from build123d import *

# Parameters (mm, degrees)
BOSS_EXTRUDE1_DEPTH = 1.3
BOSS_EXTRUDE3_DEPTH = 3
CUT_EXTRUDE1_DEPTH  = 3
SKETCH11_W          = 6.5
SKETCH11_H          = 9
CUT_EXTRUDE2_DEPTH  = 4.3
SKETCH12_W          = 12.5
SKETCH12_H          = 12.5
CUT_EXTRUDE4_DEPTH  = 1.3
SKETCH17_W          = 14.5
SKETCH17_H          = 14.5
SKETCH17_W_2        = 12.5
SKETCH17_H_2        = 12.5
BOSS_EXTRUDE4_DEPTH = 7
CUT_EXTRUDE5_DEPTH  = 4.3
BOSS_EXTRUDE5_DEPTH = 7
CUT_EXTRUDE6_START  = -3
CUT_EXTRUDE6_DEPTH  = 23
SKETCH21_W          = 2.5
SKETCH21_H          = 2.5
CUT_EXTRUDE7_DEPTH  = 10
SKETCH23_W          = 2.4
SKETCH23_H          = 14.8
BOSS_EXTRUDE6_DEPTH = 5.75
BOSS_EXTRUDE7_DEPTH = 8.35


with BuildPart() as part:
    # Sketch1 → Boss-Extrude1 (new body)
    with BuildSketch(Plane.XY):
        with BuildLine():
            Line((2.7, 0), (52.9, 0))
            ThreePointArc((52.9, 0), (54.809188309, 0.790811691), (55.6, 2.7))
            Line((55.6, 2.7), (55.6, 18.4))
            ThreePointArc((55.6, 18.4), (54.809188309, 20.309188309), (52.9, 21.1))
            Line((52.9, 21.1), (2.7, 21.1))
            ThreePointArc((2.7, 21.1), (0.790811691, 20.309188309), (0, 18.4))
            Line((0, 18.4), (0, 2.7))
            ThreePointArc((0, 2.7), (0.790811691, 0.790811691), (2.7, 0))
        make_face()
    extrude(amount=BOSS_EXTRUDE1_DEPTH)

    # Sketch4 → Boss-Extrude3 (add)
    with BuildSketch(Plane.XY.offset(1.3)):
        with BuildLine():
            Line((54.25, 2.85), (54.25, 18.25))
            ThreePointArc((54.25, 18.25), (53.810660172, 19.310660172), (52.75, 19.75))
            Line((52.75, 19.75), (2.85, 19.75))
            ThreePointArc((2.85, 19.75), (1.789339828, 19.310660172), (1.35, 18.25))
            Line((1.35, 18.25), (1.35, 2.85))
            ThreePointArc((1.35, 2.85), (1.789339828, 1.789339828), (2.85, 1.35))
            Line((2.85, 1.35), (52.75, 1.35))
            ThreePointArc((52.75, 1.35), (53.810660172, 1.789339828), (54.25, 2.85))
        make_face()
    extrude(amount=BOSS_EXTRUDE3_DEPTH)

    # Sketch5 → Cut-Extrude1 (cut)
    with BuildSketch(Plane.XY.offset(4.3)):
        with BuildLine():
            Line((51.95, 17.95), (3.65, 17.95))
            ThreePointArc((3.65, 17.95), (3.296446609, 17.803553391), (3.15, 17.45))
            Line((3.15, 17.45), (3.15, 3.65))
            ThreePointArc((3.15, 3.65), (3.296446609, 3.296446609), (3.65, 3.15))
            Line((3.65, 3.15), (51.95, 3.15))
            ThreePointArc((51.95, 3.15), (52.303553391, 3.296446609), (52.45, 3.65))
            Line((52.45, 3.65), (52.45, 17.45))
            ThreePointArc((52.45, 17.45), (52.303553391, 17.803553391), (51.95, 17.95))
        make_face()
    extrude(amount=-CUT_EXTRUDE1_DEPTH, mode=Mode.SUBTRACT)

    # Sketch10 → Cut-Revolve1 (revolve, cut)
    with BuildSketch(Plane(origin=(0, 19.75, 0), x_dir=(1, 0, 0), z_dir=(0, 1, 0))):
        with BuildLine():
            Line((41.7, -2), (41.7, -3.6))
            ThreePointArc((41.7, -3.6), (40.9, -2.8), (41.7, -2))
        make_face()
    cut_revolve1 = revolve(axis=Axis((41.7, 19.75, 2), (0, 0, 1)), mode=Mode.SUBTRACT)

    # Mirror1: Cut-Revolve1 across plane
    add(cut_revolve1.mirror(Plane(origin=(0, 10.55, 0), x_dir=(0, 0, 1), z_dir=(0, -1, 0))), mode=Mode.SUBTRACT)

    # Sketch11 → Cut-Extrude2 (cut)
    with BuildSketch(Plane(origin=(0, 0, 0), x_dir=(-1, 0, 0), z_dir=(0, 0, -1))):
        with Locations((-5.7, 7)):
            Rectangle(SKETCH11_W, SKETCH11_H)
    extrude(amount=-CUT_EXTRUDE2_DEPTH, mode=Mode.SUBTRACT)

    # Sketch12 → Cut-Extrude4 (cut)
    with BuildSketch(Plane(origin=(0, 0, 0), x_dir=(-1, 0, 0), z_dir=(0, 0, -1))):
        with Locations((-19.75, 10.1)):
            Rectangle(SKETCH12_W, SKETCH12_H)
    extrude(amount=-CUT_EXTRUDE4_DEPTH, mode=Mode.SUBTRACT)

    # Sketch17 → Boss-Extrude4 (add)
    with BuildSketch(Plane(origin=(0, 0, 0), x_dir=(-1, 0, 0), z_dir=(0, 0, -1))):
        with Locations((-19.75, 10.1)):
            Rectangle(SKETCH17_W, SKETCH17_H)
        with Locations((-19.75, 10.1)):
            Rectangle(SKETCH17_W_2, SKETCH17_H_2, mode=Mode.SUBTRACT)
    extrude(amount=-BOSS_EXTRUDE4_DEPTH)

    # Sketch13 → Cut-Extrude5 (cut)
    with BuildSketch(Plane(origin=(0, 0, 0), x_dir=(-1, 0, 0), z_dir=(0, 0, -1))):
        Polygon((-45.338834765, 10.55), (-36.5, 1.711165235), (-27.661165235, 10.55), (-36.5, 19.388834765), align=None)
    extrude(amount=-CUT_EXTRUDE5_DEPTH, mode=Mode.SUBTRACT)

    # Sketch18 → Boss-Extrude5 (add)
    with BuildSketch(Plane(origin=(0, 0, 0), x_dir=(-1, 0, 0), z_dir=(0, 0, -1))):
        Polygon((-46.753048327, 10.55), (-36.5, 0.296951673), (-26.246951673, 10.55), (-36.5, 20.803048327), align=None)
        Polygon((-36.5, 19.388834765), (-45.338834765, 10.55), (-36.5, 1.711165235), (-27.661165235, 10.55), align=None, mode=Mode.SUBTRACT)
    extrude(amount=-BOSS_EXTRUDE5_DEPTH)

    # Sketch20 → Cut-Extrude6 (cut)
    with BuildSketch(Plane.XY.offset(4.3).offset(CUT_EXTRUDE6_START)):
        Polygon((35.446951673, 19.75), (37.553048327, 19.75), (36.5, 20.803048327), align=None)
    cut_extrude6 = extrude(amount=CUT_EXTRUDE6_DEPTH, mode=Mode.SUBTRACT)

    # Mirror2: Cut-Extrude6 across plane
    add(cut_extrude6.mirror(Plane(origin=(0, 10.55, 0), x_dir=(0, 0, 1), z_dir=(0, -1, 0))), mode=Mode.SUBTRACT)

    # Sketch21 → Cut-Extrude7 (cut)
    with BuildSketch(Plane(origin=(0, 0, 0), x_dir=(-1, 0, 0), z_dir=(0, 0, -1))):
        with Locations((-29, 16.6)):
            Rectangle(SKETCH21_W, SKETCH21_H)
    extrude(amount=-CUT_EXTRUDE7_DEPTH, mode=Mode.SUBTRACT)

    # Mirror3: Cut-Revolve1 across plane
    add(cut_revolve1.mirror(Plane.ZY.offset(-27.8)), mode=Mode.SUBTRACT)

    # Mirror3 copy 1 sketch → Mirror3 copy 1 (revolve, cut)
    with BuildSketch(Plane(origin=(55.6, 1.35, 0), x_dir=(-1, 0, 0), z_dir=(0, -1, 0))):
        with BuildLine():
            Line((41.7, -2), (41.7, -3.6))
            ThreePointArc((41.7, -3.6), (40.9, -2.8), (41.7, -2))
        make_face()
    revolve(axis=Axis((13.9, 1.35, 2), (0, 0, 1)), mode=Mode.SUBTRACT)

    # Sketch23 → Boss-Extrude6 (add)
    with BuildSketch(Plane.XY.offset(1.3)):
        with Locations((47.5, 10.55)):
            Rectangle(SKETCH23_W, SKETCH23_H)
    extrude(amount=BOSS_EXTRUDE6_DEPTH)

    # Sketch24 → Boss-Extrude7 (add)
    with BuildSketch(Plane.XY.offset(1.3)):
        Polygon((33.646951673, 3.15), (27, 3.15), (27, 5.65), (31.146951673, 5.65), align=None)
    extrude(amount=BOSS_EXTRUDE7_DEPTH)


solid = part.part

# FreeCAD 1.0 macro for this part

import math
import FreeCAD as App
import Part
import Sketcher
from FreeCAD import Vector
Q = App.Units.Quantity


def add_polygon(sketch, points):
    """Adds a closed chain of lines whose ends are joined by coincident constraints."""
    first, n = sketch.GeometryCount, len(points)
    for a, b in zip(points, points[1:] + points[:1]):
        sketch.addGeometry(Part.LineSegment(App.Vector(*a, 0), App.Vector(*b, 0)), False)
    for i in range(n):
        sketch.addConstraint(Sketcher.Constraint("Coincident", first + i, 2, first + (i + 1) % n, 1))

doc = App.newDocument("Part")
body = doc.addObject("PartDesign::Body", "Body")

sketch1 = body.newObject("Sketcher::SketchObject", "Sketch")
sketch1.AttachmentSupport = (doc.getObject("XY_Plane"), [""])
sketch1.MapMode = "FlatFace"
sketch1.addGeometry(Part.LineSegment(Vector(2.7, 0, 0), Vector(52.9, 0, 0)), False)
sketch1.addGeometry(Part.ArcOfCircle(Part.Circle(Vector(52.9, 2.7, 0), Vector(0, 0, 1), 2.7), math.radians(-90), math.radians(0)), False)
sketch1.addGeometry(Part.LineSegment(Vector(55.6, 2.7, 0), Vector(55.6, 18.4, 0)), False)
sketch1.addGeometry(Part.ArcOfCircle(Part.Circle(Vector(52.9, 18.4, 0), Vector(0, 0, 1), 2.7), math.radians(0), math.radians(90)), False)
sketch1.addGeometry(Part.LineSegment(Vector(52.9, 21.1, 0), Vector(2.7, 21.1, 0)), False)
sketch1.addGeometry(Part.ArcOfCircle(Part.Circle(Vector(2.7, 18.4, 0), Vector(0, 0, 1), 2.7), math.radians(90), math.radians(180)), False)
sketch1.addGeometry(Part.LineSegment(Vector(0, 18.4, 0), Vector(0, 2.7, 0)), False)
sketch1.addGeometry(Part.ArcOfCircle(Part.Circle(Vector(2.7, 2.7, 0), Vector(0, 0, 1), 2.7), math.radians(-180), math.radians(-90)), False)
sketch1.addConstraint(Sketcher.Constraint("Tangent", 0, 2, 1, 1))
sketch1.addConstraint(Sketcher.Constraint("Tangent", 1, 2, 2, 1))
sketch1.addConstraint(Sketcher.Constraint("Tangent", 2, 2, 3, 1))
sketch1.addConstraint(Sketcher.Constraint("Tangent", 3, 2, 4, 1))
sketch1.addConstraint(Sketcher.Constraint("Tangent", 4, 2, 5, 1))
sketch1.addConstraint(Sketcher.Constraint("Tangent", 5, 2, 6, 1))
sketch1.addConstraint(Sketcher.Constraint("Tangent", 6, 2, 7, 1))
sketch1.addConstraint(Sketcher.Constraint("Tangent", 7, 2, 0, 1))
sketch1.addConstraint(Sketcher.Constraint("Horizontal", 0))
sketch1.addConstraint(Sketcher.Constraint("Vertical", 2))
sketch1.addConstraint(Sketcher.Constraint("Horizontal", 4))
sketch1.addConstraint(Sketcher.Constraint("Vertical", 6))
sketch1.addConstraint(Sketcher.Constraint("Equal", 1, 3))
sketch1.addConstraint(Sketcher.Constraint("Equal", 3, 5))
sketch1.addConstraint(Sketcher.Constraint("Equal", 5, 7))
sketch1.addConstraint(Sketcher.Constraint("PointOnObject", 0, 2, -1))
sketch1.addConstraint(Sketcher.Constraint("PointOnObject", 5, 2, -2))
sketch1.addConstraint(Sketcher.Constraint("Radius", 1, Q("2.7 mm")))
sketch1.addConstraint(Sketcher.Constraint("DistanceX", 0, 1, 0, 2, Q("50.2 mm")))
sketch1.addConstraint(Sketcher.Constraint("DistanceY", 2, 1, 2, 2, Q("15.7 mm")))
pad1 = body.newObject("PartDesign::Pad", "Pad")
pad1.Profile = sketch1
pad1.Length = 1.3

sketch2 = body.newObject("Sketcher::SketchObject", "Sketch001")
sketch2.AttachmentSupport = (doc.getObject("XY_Plane"), [""])
sketch2.MapMode = "FlatFace"
sketch2.AttachmentOffset = App.Placement(Vector(0, 0, 1.3), App.Rotation())
sketch2.addGeometry(Part.LineSegment(Vector(54.2, 2.9, 0), Vector(54.2, 18.2, 0)), False)
sketch2.addGeometry(Part.ArcOfCircle(Part.Circle(Vector(52.8, 18.3, 0), Vector(0, 0, 1), 1.5), math.radians(0), math.radians(90)), False)
sketch2.addGeometry(Part.LineSegment(Vector(52.8, 19.8, 0), Vector(2.9, 19.8, 0)), False)
sketch2.addGeometry(Part.ArcOfCircle(Part.Circle(Vector(2.8, 18.3, 0), Vector(0, 0, 1), 1.5), math.radians(90), math.radians(180)), False)
sketch2.addGeometry(Part.LineSegment(Vector(1.4, 18.2, 0), Vector(1.4, 2.9, 0)), False)
sketch2.addGeometry(Part.ArcOfCircle(Part.Circle(Vector(2.8, 2.8, 0), Vector(0, 0, 1), 1.5), math.radians(180), math.radians(270)), False)
sketch2.addGeometry(Part.LineSegment(Vector(2.9, 1.4, 0), Vector(52.8, 1.4, 0)), False)
sketch2.addGeometry(Part.ArcOfCircle(Part.Circle(Vector(52.8, 2.8, 0), Vector(0, 0, 1), 1.5), math.radians(-90), math.radians(0)), False)
sketch2.addConstraint(Sketcher.Constraint("Tangent", 0, 2, 1, 1))
sketch2.addConstraint(Sketcher.Constraint("Tangent", 1, 2, 2, 1))
sketch2.addConstraint(Sketcher.Constraint("Tangent", 2, 2, 3, 1))
sketch2.addConstraint(Sketcher.Constraint("Tangent", 3, 2, 4, 1))
sketch2.addConstraint(Sketcher.Constraint("Tangent", 4, 2, 5, 1))
sketch2.addConstraint(Sketcher.Constraint("Tangent", 5, 2, 6, 1))
sketch2.addConstraint(Sketcher.Constraint("Tangent", 6, 2, 7, 1))
sketch2.addConstraint(Sketcher.Constraint("Tangent", 7, 2, 0, 1))
sketch2.addConstraint(Sketcher.Constraint("Vertical", 0))
sketch2.addConstraint(Sketcher.Constraint("Horizontal", 2))
sketch2.addConstraint(Sketcher.Constraint("Vertical", 4))
sketch2.addConstraint(Sketcher.Constraint("Horizontal", 6))
sketch2.addConstraint(Sketcher.Constraint("Equal", 1, 3))
sketch2.addConstraint(Sketcher.Constraint("Equal", 3, 5))
sketch2.addConstraint(Sketcher.Constraint("Equal", 5, 7))
sketch2.addConstraint(Sketcher.Constraint("Radius", 1, Q("1.5 mm")))
sketch2.addConstraint(Sketcher.Constraint("DistanceX", 2, 2, 2, 1, Q("49.9 mm")))
sketch2.addConstraint(Sketcher.Constraint("DistanceY", 0, 1, 0, 2, Q("15.4 mm")))
sketch2.addConstraint(Sketcher.Constraint("DistanceX", -1, 1, 1, 3, Q("52.75 mm")))
sketch2.addConstraint(Sketcher.Constraint("DistanceY", -1, 1, 1, 3, Q("18.25 mm")))
pad2 = body.newObject("PartDesign::Pad", "Pad001")
pad2.Profile = sketch2
pad2.Length = 3

sketch3 = body.newObject("Sketcher::SketchObject", "Sketch002")
sketch3.AttachmentSupport = (doc.getObject("XY_Plane"), [""])
sketch3.MapMode = "FlatFace"
sketch3.AttachmentOffset = App.Placement(Vector(0, 0, 4.3), App.Rotation())
sketch3.addGeometry(Part.LineSegment(Vector(51.95, 17.95, 0), Vector(3.65, 17.95, 0)), False)
sketch3.addGeometry(Part.ArcOfCircle(Part.Circle(Vector(3.65, 17.45, 0), Vector(0, 0, 1), 0.5), math.radians(90), math.radians(180)), False)
sketch3.addGeometry(Part.LineSegment(Vector(3.15, 17.45, 0), Vector(3.15, 3.65, 0)), False)
sketch3.addGeometry(Part.ArcOfCircle(Part.Circle(Vector(3.65, 3.65, 0), Vector(0, 0, 1), 0.5), math.radians(180), math.radians(270)), False)
sketch3.addGeometry(Part.LineSegment(Vector(3.65, 3.15, 0), Vector(51.95, 3.15, 0)), False)
sketch3.addGeometry(Part.ArcOfCircle(Part.Circle(Vector(51.95, 3.65, 0), Vector(0, 0, 1), 0.5), math.radians(-90), math.radians(0)), False)
sketch3.addGeometry(Part.LineSegment(Vector(52.45, 3.65, 0), Vector(52.45, 17.45, 0)), False)
sketch3.addGeometry(Part.ArcOfCircle(Part.Circle(Vector(51.95, 17.45, 0), Vector(0, 0, 1), 0.5), math.radians(0), math.radians(90)), False)
sketch3.addConstraint(Sketcher.Constraint("Tangent", 0, 2, 1, 1))
sketch3.addConstraint(Sketcher.Constraint("Tangent", 1, 2, 2, 1))
sketch3.addConstraint(Sketcher.Constraint("Tangent", 2, 2, 3, 1))
sketch3.addConstraint(Sketcher.Constraint("Tangent", 3, 2, 4, 1))
sketch3.addConstraint(Sketcher.Constraint("Tangent", 4, 2, 5, 1))
sketch3.addConstraint(Sketcher.Constraint("Tangent", 5, 2, 6, 1))
sketch3.addConstraint(Sketcher.Constraint("Tangent", 6, 2, 7, 1))
sketch3.addConstraint(Sketcher.Constraint("Tangent", 7, 2, 0, 1))
sketch3.addConstraint(Sketcher.Constraint("Horizontal", 0))
sketch3.addConstraint(Sketcher.Constraint("Vertical", 2))
sketch3.addConstraint(Sketcher.Constraint("Horizontal", 4))
sketch3.addConstraint(Sketcher.Constraint("Vertical", 6))
sketch3.addConstraint(Sketcher.Constraint("Equal", 1, 3))
sketch3.addConstraint(Sketcher.Constraint("Equal", 3, 5))
sketch3.addConstraint(Sketcher.Constraint("Equal", 5, 7))
sketch3.addConstraint(Sketcher.Constraint("Radius", 1, Q("0.5 mm")))
sketch3.addConstraint(Sketcher.Constraint("DistanceX", 0, 2, 0, 1, Q("48.3 mm")))
sketch3.addConstraint(Sketcher.Constraint("DistanceY", 2, 2, 2, 1, Q("13.8 mm")))
sketch3.addConstraint(Sketcher.Constraint("DistanceX", -1, 1, 1, 3, Q("3.65 mm")))
sketch3.addConstraint(Sketcher.Constraint("DistanceY", -1, 1, 1, 3, Q("17.45 mm")))
pocket1 = body.newObject("PartDesign::Pocket", "Pocket")
pocket1.Profile = sketch3
pocket1.Length = 3

sketch4 = body.newObject("Sketcher::SketchObject", "Sketch003")
sketch4.AttachmentSupport = (doc.getObject("XZ_Plane"), [""])
sketch4.MapMode = "FlatFace"
sketch4.AttachmentOffset = App.Placement(Vector(0, 0, -19.75), App.Rotation())
sketch4.addGeometry(Part.LineSegment(Vector(41.7, 3.6, 0), Vector(41.7, 2, 0)), False)
sketch4.addGeometry(Part.ArcOfCircle(Part.Circle(Vector(41.7, 2.8, 0), Vector(0, 0, 1), 0.8), math.radians(90), math.radians(270)), False)
sketch4.addGeometry(Part.LineSegment(Vector(41.7, 2, 0), Vector(41.7, 3.6, 0)), True)
sketch4.addConstraint(Sketcher.Constraint("Coincident", 0, 1, 1, 1))
sketch4.addConstraint(Sketcher.Constraint("Coincident", 1, 2, 0, 2))
sketch4.addConstraint(Sketcher.Constraint("Vertical", 0))
sketch4.addConstraint(Sketcher.Constraint("Vertical", 2))
sketch4.addConstraint(Sketcher.Constraint("Coincident", 2, 1, 1, 2))
sketch4.addConstraint(Sketcher.Constraint("Vertical", 1, 3, 0, 1))
sketch4.addConstraint(Sketcher.Constraint("Equal", 0, 2))
sketch4.addConstraint(Sketcher.Constraint("Radius", 1, Q("0.8 mm")))
sketch4.addConstraint(Sketcher.Constraint("DistanceY", -1, 1, 1, 2, Q("2 mm")))
sketch4.addConstraint(Sketcher.Constraint("DistanceX", -1, 1, 1, 3, Q("41.7 mm")))
groove = body.newObject("PartDesign::Groove", "Groove")
groove.Profile = sketch4
groove.ReferenceAxis = (sketch4, ["Axis0"])
groove.Angle = 360
doc.recompute()

datumplane = body.newObject("PartDesign::Plane", "DatumPlane")
datumplane.AttachmentSupport = (doc.getObject("XZ_Plane"), [""])
datumplane.MapMode = "FlatFace"
datumplane.AttachmentOffset = App.Placement(Vector(0, 0, -10.55), App.Rotation())
mirrored = body.newObject("PartDesign::Mirrored", "Mirrored")
mirrored.Originals = [groove]
mirrored.MirrorPlane = (datumplane, [""])
body.Tip = mirrored

sketch5 = body.newObject("Sketcher::SketchObject", "Sketch004")
sketch5.AttachmentSupport = (doc.getObject("XY_Plane"), [""])
sketch5.MapMode = "FlatFace"
add_polygon(sketch5, [(9, 12), (9, 2), (2, 2), (2, 12)])
sketch5.addConstraint(Sketcher.Constraint("Vertical", 0))
sketch5.addConstraint(Sketcher.Constraint("Horizontal", 1))
sketch5.addConstraint(Sketcher.Constraint("Vertical", 2))
sketch5.addConstraint(Sketcher.Constraint("Horizontal", 3))
sketch5.addConstraint(Sketcher.Constraint("DistanceY", 0, 2, 0, 1, Q("9 mm")))
sketch5.addConstraint(Sketcher.Constraint("DistanceX", 1, 2, 1, 1, Q("6.5 mm")))
sketch5.addConstraint(Sketcher.Constraint("DistanceY", -1, 1, 0, 2, Q("2.5 mm")))
sketch5.addConstraint(Sketcher.Constraint("DistanceX", -1, 1, 0, 2, Q("8.95 mm")))
pocket2 = body.newObject("PartDesign::Pocket", "Pocket001")
pocket2.Profile = sketch5
pocket2.Length = 4.3
pocket2.Reversed = True

sketch6 = body.newObject("Sketcher::SketchObject", "Sketch005")
sketch6.AttachmentSupport = (doc.getObject("XY_Plane"), [""])
sketch6.MapMode = "FlatFace"
add_polygon(sketch6, [(26, 16), (26, 4), (14, 4), (14, 16)])
sketch6.addConstraint(Sketcher.Constraint("Vertical", 0))
sketch6.addConstraint(Sketcher.Constraint("Horizontal", 1))
sketch6.addConstraint(Sketcher.Constraint("Vertical", 2))
sketch6.addConstraint(Sketcher.Constraint("Horizontal", 3))
sketch6.addConstraint(Sketcher.Constraint("Equal", 3, 0))
sketch6.addConstraint(Sketcher.Constraint("DistanceX", 1, 2, 1, 1, Q("12.5 mm")))
sketch6.addConstraint(Sketcher.Constraint("DistanceX", -1, 1, 0, 2, Q("26 mm")))
sketch6.addConstraint(Sketcher.Constraint("DistanceY", -1, 1, 0, 2, Q("3.85 mm")))
pocket3 = body.newObject("PartDesign::Pocket", "Pocket002")
pocket3.Profile = sketch6
pocket3.Length = 1.3
pocket3.Reversed = True

sketch7 = body.newObject("Sketcher::SketchObject", "Sketch006")
sketch7.AttachmentSupport = (doc.getObject("XY_Plane"), [""])
sketch7.MapMode = "FlatFace"
add_polygon(sketch7, [(27, 17), (27, 3), (12, 3), (12, 17)])
add_polygon(sketch7, [(14, 4), (26, 4), (26, 16), (14, 16)])
sketch7.addConstraint(Sketcher.Constraint("Vertical", 0))
sketch7.addConstraint(Sketcher.Constraint("Horizontal", 1))
sketch7.addConstraint(Sketcher.Constraint("Vertical", 2))
sketch7.addConstraint(Sketcher.Constraint("Horizontal", 3))
sketch7.addConstraint(Sketcher.Constraint("Horizontal", 4))
sketch7.addConstraint(Sketcher.Constraint("Vertical", 5))
sketch7.addConstraint(Sketcher.Constraint("Horizontal", 6))
sketch7.addConstraint(Sketcher.Constraint("Vertical", 7))
sketch7.addConstraint(Sketcher.Constraint("Equal", 3, 0))
sketch7.addConstraint(Sketcher.Constraint("Equal", 6, 5))
sketch7.addConstraint(Sketcher.Constraint("DistanceX", 1, 2, 1, 1, Q("14.5 mm")))
sketch7.addConstraint(Sketcher.Constraint("DistanceX", 4, 1, 4, 2, Q("12.5 mm")))
sketch7.addConstraint(Sketcher.Constraint("DistanceX", -1, 1, 0, 2, Q("27 mm")))
sketch7.addConstraint(Sketcher.Constraint("DistanceX", -1, 1, 4, 2, Q("26 mm")))
sketch7.addConstraint(Sketcher.Constraint("DistanceY", 0, 2, 4, 2, Q("1 mm")))
sketch7.addConstraint(Sketcher.Constraint("DistanceY", -1, 1, 0, 2, Q("2.85 mm")))
pad3 = body.newObject("PartDesign::Pad", "Pad002")
pad3.Profile = sketch7
pad3.Length = 7

sketch8 = body.newObject("Sketcher::SketchObject", "Sketch007")
sketch8.AttachmentSupport = (doc.getObject("XY_Plane"), [""])
sketch8.MapMode = "FlatFace"
add_polygon(sketch8, [(45, 11), (36, 2), (28, 11), (36, 19)])
sketch8.addConstraint(Sketcher.Constraint("Perpendicular", 0, 1))
sketch8.addConstraint(Sketcher.Constraint("Perpendicular", 1, 2))
sketch8.addConstraint(Sketcher.Constraint("Perpendicular", 2, 3))
sketch8.addConstraint(Sketcher.Constraint("Horizontal", 1, 2, 3, 2))
sketch8.addConstraint(Sketcher.Constraint("Vertical", 0, 2, 2, 2))
sketch8.addConstraint(Sketcher.Constraint("Distance", 0, Q("12.5 mm")))
sketch8.addConstraint(Sketcher.Constraint("DistanceX", -1, 1, 0, 2, Q("36.5 mm")))
sketch8.addConstraint(Sketcher.Constraint("DistanceY", -1, 1, 1, 2, Q("10.55 mm")))
pocket4 = body.newObject("PartDesign::Pocket", "Pocket003")
pocket4.Profile = sketch8
pocket4.Length = 4.3
pocket4.Reversed = True

sketch9 = body.newObject("Sketcher::SketchObject", "Sketch008")
sketch9.AttachmentSupport = (doc.getObject("XY_Plane"), [""])
sketch9.MapMode = "FlatFace"
add_polygon(sketch9, [(47, 11), (36, 0), (26, 11), (36, 21)])
add_polygon(sketch9, [(45, 11), (36, 19), (28, 11), (36, 2)])
sketch9.addConstraint(Sketcher.Constraint("Perpendicular", 0, 1))
sketch9.addConstraint(Sketcher.Constraint("Perpendicular", 1, 2))
sketch9.addConstraint(Sketcher.Constraint("Perpendicular", 2, 3))
sketch9.addConstraint(Sketcher.Constraint("Parallel", 3, 4))
sketch9.addConstraint(Sketcher.Constraint("Perpendicular", 4, 5))
sketch9.addConstraint(Sketcher.Constraint("Perpendicular", 5, 6))
sketch9.addConstraint(Sketcher.Constraint("Perpendicular", 6, 7))
sketch9.addConstraint(Sketcher.Constraint("Horizontal", 1, 2, 3, 2))
sketch9.addConstraint(Sketcher.Constraint("Horizontal", 3, 2, 5, 2))
sketch9.addConstraint(Sketcher.Constraint("Horizontal", 5, 2, 7, 2))
sketch9.addConstraint(Sketcher.Constraint("Vertical", 0, 2, 2, 2))
sketch9.addConstraint(Sketcher.Constraint("Vertical", 2, 2, 4, 2))
sketch9.addConstraint(Sketcher.Constraint("Distance", 0, Q("14.5 mm")))
sketch9.addConstraint(Sketcher.Constraint("Distance", 4, Q("12.5 mm")))
sketch9.addConstraint(Sketcher.Constraint("DistanceX", -1, 1, 0, 2, Q("36.5 mm")))
sketch9.addConstraint(Sketcher.Constraint("DistanceY", -1, 1, 1, 2, Q("10.55 mm")))
pad4 = body.newObject("PartDesign::Pad", "Pad003")
pad4.Profile = sketch9
pad4.Length = 7

sketch10 = body.newObject("Sketcher::SketchObject", "Sketch009")
sketch10.AttachmentSupport = (doc.getObject("XY_Plane"), [""])
sketch10.MapMode = "FlatFace"
sketch10.AttachmentOffset = App.Placement(Vector(0, 0, 1.3), App.Rotation())
add_polygon(sketch10, [(35.4, 19.8), (37.6, 19.8), (36.5, 20.8)])
sketch10.addConstraint(Sketcher.Constraint("Horizontal", 0))
sketch10.addConstraint(Sketcher.Constraint("Perpendicular", 1, 2))
sketch10.addConstraint(Sketcher.Constraint("Equal", 1, 2))
sketch10.addConstraint(Sketcher.Constraint("DistanceX", -1, 1, 1, 2, Q("36.5 mm")))
sketch10.addConstraint(Sketcher.Constraint("DistanceY", -1, 1, 0, 2, Q("19.75 mm")))
sketch10.addConstraint(Sketcher.Constraint("DistanceX", 0, 1, 0, 2, Q("2.106097 mm")))
pocket5 = body.newObject("PartDesign::Pocket", "Pocket004")
pocket5.Profile = sketch10
pocket5.Length = 23
pocket5.Reversed = True
doc.recompute()

datumplane2 = body.newObject("PartDesign::Plane", "DatumPlane001")
datumplane2.AttachmentSupport = (doc.getObject("XZ_Plane"), [""])
datumplane2.MapMode = "FlatFace"
datumplane2.AttachmentOffset = App.Placement(Vector(0, 0, -10.55), App.Rotation())
mirrored2 = body.newObject("PartDesign::Mirrored", "Mirrored001")
mirrored2.Originals = [pocket5]
mirrored2.MirrorPlane = (datumplane2, [""])
body.Tip = mirrored2

sketch11 = body.newObject("Sketcher::SketchObject", "Sketch010")
sketch11.AttachmentSupport = (doc.getObject("XY_Plane"), [""])
sketch11.MapMode = "FlatFace"
add_polygon(sketch11, [(30.2, 17.9), (30.2, 15.3), (27.8, 15.3), (27.8, 17.9)])
sketch11.addConstraint(Sketcher.Constraint("Vertical", 0))
sketch11.addConstraint(Sketcher.Constraint("Horizontal", 1))
sketch11.addConstraint(Sketcher.Constraint("Vertical", 2))
sketch11.addConstraint(Sketcher.Constraint("Horizontal", 3))
sketch11.addConstraint(Sketcher.Constraint("Equal", 3, 0))
sketch11.addConstraint(Sketcher.Constraint("DistanceX", 1, 2, 1, 1, Q("2.5 mm")))
sketch11.addConstraint(Sketcher.Constraint("DistanceX", -1, 1, 0, 2, Q("30.25 mm")))
sketch11.addConstraint(Sketcher.Constraint("DistanceY", -1, 1, 0, 2, Q("15.35 mm")))
pocket6 = body.newObject("PartDesign::Pocket", "Pocket005")
pocket6.Profile = sketch11
pocket6.Length = 10
pocket6.Reversed = True
doc.recompute()

datumplane3 = body.newObject("PartDesign::Plane", "DatumPlane002")
datumplane3.AttachmentSupport = (doc.getObject("YZ_Plane"), [""])
datumplane3.MapMode = "FlatFace"
datumplane3.AttachmentOffset = App.Placement(Vector(0, 0, 27.8), App.Rotation())
mirrored3 = body.newObject("PartDesign::Mirrored", "Mirrored002")
mirrored3.Originals = [groove]
mirrored3.MirrorPlane = (datumplane3, [""])
body.Tip = mirrored3

sketch12 = body.newObject("Sketcher::SketchObject", "Sketch011")
sketch12.AttachmentSupport = (doc.getObject("XZ_Plane"), [""])
sketch12.MapMode = "FlatFace"
sketch12.AttachmentOffset = App.Placement(Vector(0, 0, -1.35), App.Rotation())
sketch12.addGeometry(Part.LineSegment(Vector(13.9, 3.6, 0), Vector(13.9, 2, 0)), False)
sketch12.addGeometry(Part.ArcOfCircle(Part.Circle(Vector(13.9, 2.8, 0), Vector(0, 0, 1), 0.8), math.radians(-90), math.radians(90)), False)
sketch12.addGeometry(Part.LineSegment(Vector(13.9, 2, 0), Vector(13.9, 3.6, 0)), True)
sketch12.addConstraint(Sketcher.Constraint("Coincident", 0, 1, 1, 2))
sketch12.addConstraint(Sketcher.Constraint("Coincident", 1, 1, 0, 2))
sketch12.addConstraint(Sketcher.Constraint("Vertical", 0))
sketch12.addConstraint(Sketcher.Constraint("Vertical", 2))
sketch12.addConstraint(Sketcher.Constraint("Coincident", 2, 1, 1, 1))
sketch12.addConstraint(Sketcher.Constraint("Vertical", 1, 3, 0, 1))
sketch12.addConstraint(Sketcher.Constraint("Equal", 0, 2))
sketch12.addConstraint(Sketcher.Constraint("Radius", 1, Q("0.8 mm")))
sketch12.addConstraint(Sketcher.Constraint("DistanceY", -1, 1, 1, 1, Q("2 mm")))
sketch12.addConstraint(Sketcher.Constraint("DistanceX", -1, 1, 1, 3, Q("13.9 mm")))
groove2 = body.newObject("PartDesign::Groove", "Groove001")
groove2.Profile = sketch12
groove2.ReferenceAxis = (sketch12, ["Axis0"])
groove2.Angle = 360

sketch13 = body.newObject("Sketcher::SketchObject", "Sketch012")
sketch13.AttachmentSupport = (doc.getObject("XY_Plane"), [""])
sketch13.MapMode = "FlatFace"
sketch13.AttachmentOffset = App.Placement(Vector(0, 0, 1.3), App.Rotation())
add_polygon(sketch13, [(46.3, 17.9), (46.3, 3.1), (48.7, 3.1), (48.7, 17.9)])
sketch13.addConstraint(Sketcher.Constraint("Vertical", 0))
sketch13.addConstraint(Sketcher.Constraint("Horizontal", 1))
sketch13.addConstraint(Sketcher.Constraint("Vertical", 2))
sketch13.addConstraint(Sketcher.Constraint("Horizontal", 3))
sketch13.addConstraint(Sketcher.Constraint("DistanceX", 1, 1, 1, 2, Q("2.4 mm")))
sketch13.addConstraint(Sketcher.Constraint("DistanceY", 0, 2, 0, 1, Q("14.8 mm")))
sketch13.addConstraint(Sketcher.Constraint("DistanceX", -1, 1, 0, 2, Q("46.3 mm")))
sketch13.addConstraint(Sketcher.Constraint("DistanceY", -1, 1, 0, 2, Q("3.15 mm")))
pad5 = body.newObject("PartDesign::Pad", "Pad004")
pad5.Profile = sketch13
pad5.Length = 5.75

sketch14 = body.newObject("Sketcher::SketchObject", "Sketch013")
sketch14.AttachmentSupport = (doc.getObject("XY_Plane"), [""])
sketch14.MapMode = "FlatFace"
sketch14.AttachmentOffset = App.Placement(Vector(0, 0, 1.3), App.Rotation())
add_polygon(sketch14, [(27, 3.1), (33.6, 3.1), (31.1, 5.7), (27, 5.7)])
sketch14.addConstraint(Sketcher.Constraint("Horizontal", 0))
sketch14.addConstraint(Sketcher.Constraint("Horizontal", 2))
sketch14.addConstraint(Sketcher.Constraint("Vertical", 3))
sketch14.addConstraint(Sketcher.Constraint("Angle", 1, Q("135 deg")))
sketch14.addConstraint(Sketcher.Constraint("DistanceY", 3, 2, 3, 1, Q("2.5 mm")))
sketch14.addConstraint(Sketcher.Constraint("DistanceX", -1, 1, 2, 2, Q("27 mm")))
sketch14.addConstraint(Sketcher.Constraint("DistanceY", -1, 1, 0, 2, Q("3.15 mm")))
sketch14.addConstraint(Sketcher.Constraint("DistanceX", 0, 1, 0, 2, Q("6.646952 mm")))
pad6 = body.newObject("PartDesign::Pad", "Pad005")
pad6.Profile = sketch14
pad6.Length = 8.35

doc.recompute()
